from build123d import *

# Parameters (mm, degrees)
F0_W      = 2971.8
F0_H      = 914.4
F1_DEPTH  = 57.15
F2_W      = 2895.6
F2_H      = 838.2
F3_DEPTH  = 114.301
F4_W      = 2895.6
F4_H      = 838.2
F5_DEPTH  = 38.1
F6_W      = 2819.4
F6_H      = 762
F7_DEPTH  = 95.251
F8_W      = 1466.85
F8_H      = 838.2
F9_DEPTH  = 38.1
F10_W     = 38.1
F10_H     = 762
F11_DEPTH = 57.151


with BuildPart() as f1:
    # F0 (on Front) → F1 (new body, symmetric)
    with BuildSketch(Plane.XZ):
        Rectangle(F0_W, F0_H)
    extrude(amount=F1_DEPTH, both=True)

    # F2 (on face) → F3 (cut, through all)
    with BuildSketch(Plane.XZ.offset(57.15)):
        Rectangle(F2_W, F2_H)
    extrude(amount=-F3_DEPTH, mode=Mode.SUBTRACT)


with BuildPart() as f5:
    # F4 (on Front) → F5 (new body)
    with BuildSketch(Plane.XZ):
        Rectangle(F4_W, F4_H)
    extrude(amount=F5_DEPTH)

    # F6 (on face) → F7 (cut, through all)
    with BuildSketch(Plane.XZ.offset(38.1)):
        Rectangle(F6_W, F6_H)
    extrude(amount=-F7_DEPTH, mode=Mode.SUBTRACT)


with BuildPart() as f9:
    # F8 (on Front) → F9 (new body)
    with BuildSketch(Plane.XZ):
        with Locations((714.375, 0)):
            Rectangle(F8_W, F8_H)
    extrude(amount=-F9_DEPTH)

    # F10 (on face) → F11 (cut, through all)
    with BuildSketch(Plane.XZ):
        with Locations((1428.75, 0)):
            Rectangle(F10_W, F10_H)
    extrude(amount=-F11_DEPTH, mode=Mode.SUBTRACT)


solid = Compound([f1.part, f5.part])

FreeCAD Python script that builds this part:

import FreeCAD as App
import Part
import Sketcher
from FreeCAD import Vector
Q = App.Units.Quantity


def add_polygon(sketch, points):
    """Adds a closed chain of lines whose ends are joined by coincident constraints."""
    first, n = sketch.GeometryCount, len(points)
    for a, b in zip(points, points[1:] + points[:1]):
        sketch.addGeometry(Part.LineSegment(App.Vector(*a, 0), App.Vector(*b, 0)), False)
    for i in range(n):
        sketch.addConstraint(Sketcher.Constraint("Coincident", first + i, 2, first + (i + 1) % n, 1))

doc = App.newDocument("Part")
body = doc.addObject("PartDesign::Body", "Body")

# Sketch on XZ plane
sketch1 = doc.addObject("Sketcher::SketchObject", "Sketch")
body.addObject(sketch1)
sketch1.AttachmentSupport = (doc.XZ_Plane, [""])
sketch1.MapMode = "FlatFace"
add_polygon(sketch1, [(-1486, 457), (-1486, -457), (1486, -457), (1486, 457)])  # lines 0-3
sketch1.addConstraint(Sketcher.Constraint("Vertical", 0))
sketch1.addConstraint(Sketcher.Constraint("Horizontal", 1))
sketch1.addConstraint(Sketcher.Constraint("Vertical", 2))
sketch1.addConstraint(Sketcher.Constraint("Horizontal", 3))
sketch1.addConstraint(Sketcher.Constraint("Symmetric", 0, 2, 2, 2, -1, 1))
sketch1.addConstraint(Sketcher.Constraint("DistanceX", 1, 1, 1, 2, Q("117 in")))
sketch1.addConstraint(Sketcher.Constraint("DistanceY", 0, 2, 0, 1, Q("36 in")))
pad1 = doc.addObject("PartDesign::Pad", "Pad")
body.addObject(pad1)
pad1.Profile = sketch1
pad1.Length = Q("4.5 in")
pad1.Midplane = True

# Sketch on XZ plane
sketch2 = doc.addObject("Sketcher::SketchObject", "Sketch001")
body.addObject(sketch2)
sketch2.AttachmentSupport = (doc.XZ_Plane, [""])
sketch2.MapMode = "FlatFace"
sketch2.AttachmentOffset = App.Placement(Vector(0, 0, 2.25 * 25.4), App.Rotation())
add_polygon(sketch2, [(-1448, 419), (-1448, -419), (1448, -419), (1448, 419)])  # lines 0-3
sketch2.addConstraint(Sketcher.Constraint("Vertical", 0))
sketch2.addConstraint(Sketcher.Constraint("Horizontal", 1))
sketch2.addConstraint(Sketcher.Constraint("Vertical", 2))
sketch2.addConstraint(Sketcher.Constraint("Horizontal", 3))
sketch2.addConstraint(Sketcher.Constraint("Symmetric", 0, 2, 2, 2, -1, 1))
sketch2.addConstraint(Sketcher.Constraint("DistanceX", 1, 1, 1, 2, Q("114 in")))
sketch2.addConstraint(Sketcher.Constraint("DistanceY", 0, 2, 0, 1, Q("33 in")))
pocket1 = doc.addObject("PartDesign::Pocket", "Pocket")
body.addObject(pocket1)
pocket1.Profile = sketch2
pocket1.Type = "ThroughAll"
body2 = doc.addObject("PartDesign::Body", "Body001")

# Sketch on XZ plane
sketch3 = doc.addObject("Sketcher::SketchObject", "Sketch002")
body2.addObject(sketch3)
sketch3.AttachmentSupport = (doc.getObject("XZ_Plane001"), [""])
sketch3.MapMode = "FlatFace"
add_polygon(sketch3, [(-1448, 419), (-1448, -419), (1448, -419), (1448, 419)])  # lines 0-3
sketch3.addConstraint(Sketcher.Constraint("Vertical", 0))
sketch3.addConstraint(Sketcher.Constraint("Horizontal", 1))
sketch3.addConstraint(Sketcher.Constraint("Vertical", 2))
sketch3.addConstraint(Sketcher.Constraint("Horizontal", 3))
sketch3.addConstraint(Sketcher.Constraint("Symmetric", 0, 2, 2, 2, -1, 1))
sketch3.addConstraint(Sketcher.Constraint("DistanceX", 1, 1, 1, 2, Q("114 in")))
sketch3.addConstraint(Sketcher.Constraint("DistanceY", 0, 2, 0, 1, Q("33 in")))
pad2 = doc.addObject("PartDesign::Pad", "Pad001")
body2.addObject(pad2)
pad2.Profile = sketch3
pad2.Length = Q("1.5 in")

# Sketch on XZ plane
sketch4 = doc.addObject("Sketcher::SketchObject", "Sketch003")
body2.addObject(sketch4)
sketch4.AttachmentSupport = (doc.getObject("XZ_Plane001"), [""])
sketch4.MapMode = "FlatFace"
sketch4.AttachmentOffset = App.Placement(Vector(0, 0, 1.5 * 25.4), App.Rotation())
add_polygon(sketch4, [(-1410, 381), (-1410, -381), (1410, -381), (1410, 381)])  # lines 0-3
sketch4.addConstraint(Sketcher.Constraint("Vertical", 0))
sketch4.addConstraint(Sketcher.Constraint("Horizontal", 1))
sketch4.addConstraint(Sketcher.Constraint("Vertical", 2))
sketch4.addConstraint(Sketcher.Constraint("Horizontal", 3))
sketch4.addConstraint(Sketcher.Constraint("Symmetric", 0, 2, 2, 2, -1, 1))
sketch4.addConstraint(Sketcher.Constraint("DistanceX", 1, 1, 1, 2, Q("111 in")))
sketch4.addConstraint(Sketcher.Constraint("DistanceY", 0, 2, 0, 1, Q("30 in")))
pocket2 = doc.addObject("PartDesign::Pocket", "Pocket001")
body2.addObject(pocket2)
pocket2.Profile = sketch4
pocket2.Type = "ThroughAll"
body3 = doc.addObject("PartDesign::Body", "Body002")

# Sketch on XZ plane
sketch5 = doc.addObject("Sketcher::SketchObject", "Sketch004")
body3.addObject(sketch5)
sketch5.AttachmentSupport = (doc.getObject("XZ_Plane002"), [""])
sketch5.MapMode = "FlatFace"
add_polygon(sketch5, [(-19, 419), (-19, -419), (1448, -419), (1448, 419)])  # lines 0-3
sketch5.addConstraint(Sketcher.Constraint("Vertical", 0))
sketch5.addConstraint(Sketcher.Constraint("Horizontal", 1))
sketch5.addConstraint(Sketcher.Constraint("Vertical", 2))
sketch5.addConstraint(Sketcher.Constraint("Horizontal", 3))
sketch5.addConstraint(Sketcher.Constraint("DistanceY", 0, 2, 0, 1, Q("33 in")))
sketch5.addConstraint(Sketcher.Constraint("DistanceX", -1, 1, 1, 2, Q("57 in")))
sketch5.addConstraint(Sketcher.Constraint("DistanceX", 1, 1, 1, 2, Q("57.75 in")))
sketch5.addConstraint(Sketcher.Constraint("DistanceY", 0, 2, -1, 1, Q("16.5 in")))
pad3 = doc.addObject("PartDesign::Pad", "Pad002")
body3.addObject(pad3)
pad3.Profile = sketch5
pad3.Length = Q("1.5 in")
pad3.Reversed = True

# Sketch on XZ plane
sketch6 = doc.addObject("Sketcher::SketchObject", "Sketch005")
body3.addObject(sketch6)
sketch6.AttachmentSupport = (doc.getObject("XZ_Plane002"), [""])
sketch6.MapMode = "FlatFace"
add_polygon(sketch6, [(1410, 381), (1410, -381), (1448, -381), (1448, 381)])  # lines 0-3
sketch6.addConstraint(Sketcher.Constraint("Vertical", 0))
sketch6.addConstraint(Sketcher.Constraint("Horizontal", 1))
sketch6.addConstraint(Sketcher.Constraint("Vertical", 2))
sketch6.addConstraint(Sketcher.Constraint("Horizontal", 3))
sketch6.addConstraint(Sketcher.Constraint("DistanceY", 0, 2, 0, 1, Q("30 in")))
sketch6.addConstraint(Sketcher.Constraint("DistanceX", 1, 1, 1, 2, Q("1.5 in")))
sketch6.addConstraint(Sketcher.Constraint("DistanceY", 0, 2, -1, 1, Q("15 in")))
sketch6.addConstraint(Sketcher.Constraint("DistanceX", -1, 1, 1, 2, Q("57 in")))
pocket3 = doc.addObject("PartDesign::Pocket", "Pocket002")
body3.addObject(pocket3)
pocket3.Profile = sketch6
pocket3.Type = "ThroughAll"
body3.Visibility = False

doc.recompute()
